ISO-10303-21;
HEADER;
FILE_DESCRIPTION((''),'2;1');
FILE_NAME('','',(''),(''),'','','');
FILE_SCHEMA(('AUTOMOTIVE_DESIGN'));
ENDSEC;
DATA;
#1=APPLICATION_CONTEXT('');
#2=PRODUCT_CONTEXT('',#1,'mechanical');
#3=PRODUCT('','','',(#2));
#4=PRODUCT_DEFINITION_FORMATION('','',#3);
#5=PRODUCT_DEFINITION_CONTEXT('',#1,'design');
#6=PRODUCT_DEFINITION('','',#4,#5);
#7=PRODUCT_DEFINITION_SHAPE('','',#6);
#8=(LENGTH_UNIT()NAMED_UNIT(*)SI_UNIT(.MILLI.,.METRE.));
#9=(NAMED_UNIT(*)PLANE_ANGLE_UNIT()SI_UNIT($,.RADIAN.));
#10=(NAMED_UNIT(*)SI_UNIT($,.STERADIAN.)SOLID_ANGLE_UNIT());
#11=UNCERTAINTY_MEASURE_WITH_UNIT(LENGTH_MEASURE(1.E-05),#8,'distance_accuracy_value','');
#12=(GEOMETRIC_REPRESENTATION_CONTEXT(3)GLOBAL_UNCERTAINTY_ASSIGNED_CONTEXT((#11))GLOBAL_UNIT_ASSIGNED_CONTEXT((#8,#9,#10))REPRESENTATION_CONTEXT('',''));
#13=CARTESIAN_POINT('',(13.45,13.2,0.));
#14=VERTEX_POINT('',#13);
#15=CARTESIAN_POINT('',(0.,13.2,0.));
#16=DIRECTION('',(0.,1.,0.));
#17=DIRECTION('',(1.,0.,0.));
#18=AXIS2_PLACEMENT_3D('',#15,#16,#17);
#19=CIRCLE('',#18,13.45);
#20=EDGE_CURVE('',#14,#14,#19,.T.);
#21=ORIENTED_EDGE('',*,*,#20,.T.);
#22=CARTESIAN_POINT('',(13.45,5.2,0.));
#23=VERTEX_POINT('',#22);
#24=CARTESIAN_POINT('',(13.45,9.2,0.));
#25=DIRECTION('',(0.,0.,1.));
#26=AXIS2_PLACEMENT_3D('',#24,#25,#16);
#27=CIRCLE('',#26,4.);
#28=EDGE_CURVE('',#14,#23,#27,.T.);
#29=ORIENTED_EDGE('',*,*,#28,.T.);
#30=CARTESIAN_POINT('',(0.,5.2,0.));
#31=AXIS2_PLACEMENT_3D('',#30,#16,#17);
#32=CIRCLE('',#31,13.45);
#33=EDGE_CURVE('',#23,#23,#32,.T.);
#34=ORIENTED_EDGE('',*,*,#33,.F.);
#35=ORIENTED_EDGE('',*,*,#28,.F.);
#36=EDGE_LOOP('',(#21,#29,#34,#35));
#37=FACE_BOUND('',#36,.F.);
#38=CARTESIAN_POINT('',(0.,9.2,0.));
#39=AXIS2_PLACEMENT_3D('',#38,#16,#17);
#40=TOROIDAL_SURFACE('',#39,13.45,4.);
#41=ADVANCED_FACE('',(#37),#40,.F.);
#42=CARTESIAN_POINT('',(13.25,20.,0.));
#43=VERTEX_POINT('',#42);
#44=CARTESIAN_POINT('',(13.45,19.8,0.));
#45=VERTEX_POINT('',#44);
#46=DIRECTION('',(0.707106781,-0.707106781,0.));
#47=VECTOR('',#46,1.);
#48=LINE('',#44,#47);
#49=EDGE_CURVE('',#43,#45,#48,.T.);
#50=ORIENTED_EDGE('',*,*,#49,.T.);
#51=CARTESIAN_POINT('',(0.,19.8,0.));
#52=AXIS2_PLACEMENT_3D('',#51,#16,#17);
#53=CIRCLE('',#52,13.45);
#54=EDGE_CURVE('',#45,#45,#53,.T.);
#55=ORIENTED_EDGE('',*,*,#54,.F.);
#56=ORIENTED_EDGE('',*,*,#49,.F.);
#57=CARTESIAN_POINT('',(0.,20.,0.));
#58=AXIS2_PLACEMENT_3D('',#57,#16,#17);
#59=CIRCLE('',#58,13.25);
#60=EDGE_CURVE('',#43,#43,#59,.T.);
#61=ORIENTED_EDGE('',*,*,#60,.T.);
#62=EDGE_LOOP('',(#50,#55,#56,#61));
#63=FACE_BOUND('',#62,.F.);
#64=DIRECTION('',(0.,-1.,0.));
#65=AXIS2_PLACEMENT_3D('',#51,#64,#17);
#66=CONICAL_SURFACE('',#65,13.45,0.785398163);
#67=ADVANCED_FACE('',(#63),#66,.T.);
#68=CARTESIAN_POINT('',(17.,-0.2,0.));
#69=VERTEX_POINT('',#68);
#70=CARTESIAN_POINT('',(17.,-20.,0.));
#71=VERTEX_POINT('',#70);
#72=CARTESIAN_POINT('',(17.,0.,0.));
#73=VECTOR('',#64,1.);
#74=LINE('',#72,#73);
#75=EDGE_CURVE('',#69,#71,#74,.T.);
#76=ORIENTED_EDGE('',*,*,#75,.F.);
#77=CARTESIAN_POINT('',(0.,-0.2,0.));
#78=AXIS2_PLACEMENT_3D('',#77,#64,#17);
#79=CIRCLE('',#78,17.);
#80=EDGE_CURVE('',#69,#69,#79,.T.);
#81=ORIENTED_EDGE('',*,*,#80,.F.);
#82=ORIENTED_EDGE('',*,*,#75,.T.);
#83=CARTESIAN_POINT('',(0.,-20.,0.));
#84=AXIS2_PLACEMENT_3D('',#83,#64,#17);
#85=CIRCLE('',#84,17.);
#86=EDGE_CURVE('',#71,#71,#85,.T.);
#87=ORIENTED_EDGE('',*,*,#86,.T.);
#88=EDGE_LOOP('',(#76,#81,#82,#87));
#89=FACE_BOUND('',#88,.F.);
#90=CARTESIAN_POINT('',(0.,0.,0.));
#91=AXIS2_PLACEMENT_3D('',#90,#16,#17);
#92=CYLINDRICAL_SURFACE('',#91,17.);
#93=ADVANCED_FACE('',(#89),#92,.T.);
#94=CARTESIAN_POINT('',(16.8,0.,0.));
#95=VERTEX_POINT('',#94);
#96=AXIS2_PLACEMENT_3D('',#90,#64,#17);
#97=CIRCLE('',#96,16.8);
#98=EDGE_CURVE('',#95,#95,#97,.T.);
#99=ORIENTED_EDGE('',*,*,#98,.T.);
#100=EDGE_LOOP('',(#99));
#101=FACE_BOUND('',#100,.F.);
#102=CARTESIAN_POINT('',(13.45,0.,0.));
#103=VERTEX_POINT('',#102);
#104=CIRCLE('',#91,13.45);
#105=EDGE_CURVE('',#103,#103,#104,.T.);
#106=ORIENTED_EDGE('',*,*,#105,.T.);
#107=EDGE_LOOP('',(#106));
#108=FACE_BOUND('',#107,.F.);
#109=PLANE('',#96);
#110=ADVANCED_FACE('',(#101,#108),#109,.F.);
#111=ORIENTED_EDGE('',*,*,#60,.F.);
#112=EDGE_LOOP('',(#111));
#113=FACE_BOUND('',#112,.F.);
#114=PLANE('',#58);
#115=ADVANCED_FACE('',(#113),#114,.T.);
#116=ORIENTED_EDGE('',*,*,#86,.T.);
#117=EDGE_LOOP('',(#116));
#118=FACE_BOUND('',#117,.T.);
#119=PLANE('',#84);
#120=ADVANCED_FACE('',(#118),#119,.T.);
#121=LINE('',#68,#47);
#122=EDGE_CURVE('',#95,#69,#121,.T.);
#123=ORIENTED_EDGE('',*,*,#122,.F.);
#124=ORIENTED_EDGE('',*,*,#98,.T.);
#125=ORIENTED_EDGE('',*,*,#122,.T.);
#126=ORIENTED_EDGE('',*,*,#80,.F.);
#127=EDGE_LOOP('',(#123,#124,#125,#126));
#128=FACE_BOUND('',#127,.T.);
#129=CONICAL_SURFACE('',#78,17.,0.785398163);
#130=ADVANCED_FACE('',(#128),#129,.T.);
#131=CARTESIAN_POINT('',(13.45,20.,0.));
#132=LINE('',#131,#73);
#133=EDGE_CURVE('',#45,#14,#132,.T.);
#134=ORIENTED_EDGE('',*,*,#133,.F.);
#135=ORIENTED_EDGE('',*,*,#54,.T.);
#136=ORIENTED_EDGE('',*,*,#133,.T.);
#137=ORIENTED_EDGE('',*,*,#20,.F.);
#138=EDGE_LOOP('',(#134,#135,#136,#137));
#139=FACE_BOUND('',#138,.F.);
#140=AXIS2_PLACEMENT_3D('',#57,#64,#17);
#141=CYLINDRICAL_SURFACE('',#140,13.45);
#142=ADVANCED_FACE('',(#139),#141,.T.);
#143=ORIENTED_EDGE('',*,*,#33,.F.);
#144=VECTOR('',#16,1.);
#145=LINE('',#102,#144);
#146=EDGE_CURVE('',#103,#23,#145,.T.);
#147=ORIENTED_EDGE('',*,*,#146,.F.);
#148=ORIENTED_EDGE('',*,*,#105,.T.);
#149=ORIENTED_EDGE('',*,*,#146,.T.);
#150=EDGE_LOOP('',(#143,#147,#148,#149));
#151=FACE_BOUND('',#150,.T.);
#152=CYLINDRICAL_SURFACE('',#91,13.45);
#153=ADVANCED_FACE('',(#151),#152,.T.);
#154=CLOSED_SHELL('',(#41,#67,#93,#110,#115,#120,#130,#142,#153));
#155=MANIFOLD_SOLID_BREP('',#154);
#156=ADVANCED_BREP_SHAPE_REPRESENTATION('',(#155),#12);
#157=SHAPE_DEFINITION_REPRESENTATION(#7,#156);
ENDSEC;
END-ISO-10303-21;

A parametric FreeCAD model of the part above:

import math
import FreeCAD as App
import Part
import Sketcher
from FreeCAD import Vector
Q = App.Units.Quantity


def edges_at(feature, points):
    """Names of the edges that pass closest to the given points."""
    edges = feature.Shape.Edges
    near = lambda p: min(range(len(edges)), key=lambda i: edges[i].distToShape(Part.Vertex(*p))[0])
    return sorted({f"Edge{near(p) + 1}" for p in points})

doc = App.newDocument("Part")
body = doc.addObject("PartDesign::Body", "Body")

sketch1 = body.newObject("Sketcher::SketchObject", "Sketch")
sketch1.AttachmentSupport = (doc.getObject("XY_Plane"), [""])
sketch1.MapMode = "FlatFace"
sketch1.addGeometry([
    Part.LineSegment(Vector(0, 20, 0), Vector(0, 0, 0)),
    Part.LineSegment(Vector(0, 0, 0), Vector(13.4, 0, 0)),
    Part.LineSegment(Vector(13.4, 0, 0), Vector(13.4, 5.2, 0)),
    Part.ArcOfCircle(Part.Circle(Vector(13.4, 9.2, 0), Vector(0, 0, 1), 4), math.radians(90), math.radians(270)),
    Part.LineSegment(Vector(13.4, 13.2, 0), Vector(13.4, 20, 0)),
    Part.LineSegment(Vector(13.4, 20, 0), Vector(0, 20, 0)),
], False)
sketch1.addConstraint([
    Sketcher.Constraint("Coincident", 0, 2, 1, 1),
    Sketcher.Constraint("Coincident", 1, 2, 2, 1),
    Sketcher.Constraint("Coincident", 2, 2, 3, 2),
    Sketcher.Constraint("Coincident", 3, 1, 4, 1),
    Sketcher.Constraint("Coincident", 4, 2, 5, 1),
    Sketcher.Constraint("Coincident", 5, 2, 0, 1),
    Sketcher.Constraint("Vertical", 0),
    Sketcher.Constraint("Horizontal", 1),
    Sketcher.Constraint("Vertical", 2),
    Sketcher.Constraint("Vertical", 4),
    Sketcher.Constraint("Horizontal", 5),
    Sketcher.Constraint("Coincident", 0, 2, -1, 1),
    Sketcher.Constraint("Vertical", 3, 3, 1, 2),
    Sketcher.Constraint("Vertical", 2, 2, 3, 1),
    Sketcher.Constraint("Radius", 3, Q("4 mm")),
    Sketcher.Constraint("DistanceY", 0, 2, 0, 1, Q("20 mm")),
    Sketcher.Constraint("DistanceY", 4, 1, 4, 2, Q("6.8 mm")),
    Sketcher.Constraint("DistanceX", 1, 1, 1, 2, Q("13.45 mm")),
])
revolution = body.newObject("PartDesign::Revolution", "Revolution")
revolution.Profile = sketch1
revolution.ReferenceAxis = (sketch1, ["V_Axis"])
revolution.Angle = 360
doc.recompute()

chamfer = body.newObject("PartDesign::Chamfer", "Chamfer")
chamfer.Base = (revolution, edges_at(revolution, [(-13.45, 20, 0)]))
chamfer.Size = 0.2

sketch2 = body.newObject("Sketcher::SketchObject", "Sketch001")
sketch2.AttachmentSupport = (doc.getObject("XZ_Plane"), [""])
sketch2.MapMode = "FlatFace"
sketch2.addGeometry(Part.Circle(Vector(0, 0, 0), Vector(0, 0, 1), 17), False)
sketch2.addConstraint([
    Sketcher.Constraint("Coincident", 0, 3, -1, 1),
    Sketcher.Constraint("Diameter", 0, Q("34 mm")),
])
pad1 = body.newObject("PartDesign::Pad", "Pad")
pad1.Profile = sketch2
pad1.Length = 20
doc.recompute()

chamfer2 = body.newObject("PartDesign::Chamfer", "Chamfer001")
chamfer2.Base = (pad1, edges_at(pad1, [(-17, 0, 0)]))
chamfer2.Size = 0.2

doc.recompute()
